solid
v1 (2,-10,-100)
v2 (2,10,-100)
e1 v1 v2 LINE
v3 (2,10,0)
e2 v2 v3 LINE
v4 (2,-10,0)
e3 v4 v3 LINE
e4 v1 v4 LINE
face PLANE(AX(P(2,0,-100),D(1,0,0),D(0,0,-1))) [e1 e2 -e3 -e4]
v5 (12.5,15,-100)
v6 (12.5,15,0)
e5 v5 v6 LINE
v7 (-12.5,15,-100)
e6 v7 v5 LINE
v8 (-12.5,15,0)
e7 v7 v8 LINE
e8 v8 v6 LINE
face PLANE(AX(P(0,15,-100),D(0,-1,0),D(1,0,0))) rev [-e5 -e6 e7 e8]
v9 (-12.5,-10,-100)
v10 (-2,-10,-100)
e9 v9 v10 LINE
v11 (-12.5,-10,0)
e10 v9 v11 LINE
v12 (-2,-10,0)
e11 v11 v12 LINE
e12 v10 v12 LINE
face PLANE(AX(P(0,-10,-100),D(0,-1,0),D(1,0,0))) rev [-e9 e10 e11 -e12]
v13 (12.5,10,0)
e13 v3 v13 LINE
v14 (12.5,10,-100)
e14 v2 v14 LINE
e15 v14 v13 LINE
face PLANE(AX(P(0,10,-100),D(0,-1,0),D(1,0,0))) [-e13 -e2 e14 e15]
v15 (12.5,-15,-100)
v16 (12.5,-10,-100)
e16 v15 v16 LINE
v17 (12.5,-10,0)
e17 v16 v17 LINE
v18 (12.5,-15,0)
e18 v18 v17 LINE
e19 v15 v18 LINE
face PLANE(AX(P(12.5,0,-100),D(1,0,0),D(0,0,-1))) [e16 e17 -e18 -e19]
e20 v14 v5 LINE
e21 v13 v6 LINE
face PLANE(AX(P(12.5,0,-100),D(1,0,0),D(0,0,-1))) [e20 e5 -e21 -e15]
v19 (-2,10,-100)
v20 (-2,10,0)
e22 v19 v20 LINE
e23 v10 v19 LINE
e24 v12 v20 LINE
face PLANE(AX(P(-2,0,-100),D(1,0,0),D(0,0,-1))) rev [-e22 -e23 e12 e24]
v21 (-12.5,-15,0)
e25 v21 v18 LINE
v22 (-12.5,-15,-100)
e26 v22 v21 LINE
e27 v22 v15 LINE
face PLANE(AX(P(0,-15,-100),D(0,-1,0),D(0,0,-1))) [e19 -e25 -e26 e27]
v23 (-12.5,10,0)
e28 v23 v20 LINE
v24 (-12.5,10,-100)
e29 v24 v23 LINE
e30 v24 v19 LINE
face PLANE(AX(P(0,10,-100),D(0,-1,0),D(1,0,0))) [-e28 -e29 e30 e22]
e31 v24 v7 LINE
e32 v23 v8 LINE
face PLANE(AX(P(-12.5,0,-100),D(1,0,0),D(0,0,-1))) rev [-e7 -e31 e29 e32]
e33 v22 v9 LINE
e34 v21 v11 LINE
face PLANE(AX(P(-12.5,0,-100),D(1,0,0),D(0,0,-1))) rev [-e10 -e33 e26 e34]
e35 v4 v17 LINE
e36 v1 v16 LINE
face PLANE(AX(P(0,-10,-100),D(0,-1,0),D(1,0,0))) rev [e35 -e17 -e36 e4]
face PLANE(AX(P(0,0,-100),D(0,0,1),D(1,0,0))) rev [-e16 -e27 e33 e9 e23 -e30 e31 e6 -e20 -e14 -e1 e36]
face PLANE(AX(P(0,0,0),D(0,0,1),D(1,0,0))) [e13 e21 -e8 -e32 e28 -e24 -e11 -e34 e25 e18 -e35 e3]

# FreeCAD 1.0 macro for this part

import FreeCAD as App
import Part
import Sketcher
from FreeCAD import Vector


def add_polygon(sketch, points):
    """Adds a closed chain of lines whose ends are joined by coincident constraints."""
    first, n = sketch.GeometryCount, len(points)
    for a, b in zip(points, points[1:] + points[:1]):
        sketch.addGeometry(Part.LineSegment(App.Vector(*a, 0), App.Vector(*b, 0)), False)
    for i in range(n):
        sketch.addConstraint(Sketcher.Constraint("Coincident", first + i, 2, first + (i + 1) % n, 1))

doc = App.newDocument("Part")
body = doc.addObject("PartDesign::Body", "Body")

sketch1 = body.newObject("Sketcher::SketchObject", "Sketch")
sketch1.AttachmentSupport = (doc.getObject("XY_Plane"), [""])
sketch1.MapMode = "FlatFace"
add_polygon(sketch1, [(-12, 15), (-12, 10), (-2, 10), (-2, -10), (-12, -10), (-12, -15), (12, -15), (12, -10), (2, -10), (2, 10), (12, 10), (12, 15)])
sketch1.addConstraint([
    Sketcher.Constraint("Vertical", 0),
    Sketcher.Constraint("Horizontal", 1),
    Sketcher.Constraint("Vertical", 2),
    Sketcher.Constraint("Horizontal", 3),
    Sketcher.Constraint("Vertical", 4),
    Sketcher.Constraint("Horizontal", 5),
    Sketcher.Constraint("Vertical", 6),
    Sketcher.Constraint("Horizontal", 7),
    Sketcher.Constraint("Vertical", 8),
    Sketcher.Constraint("Horizontal", 9),
    Sketcher.Constraint("Vertical", 10),
    Sketcher.Constraint("Horizontal", 11),
    Sketcher.Constraint("Symmetric", 0, 2, 6, 2, -1, 1),
    Sketcher.Constraint("Symmetric", 2, 2, 8, 2, -1, 1),
    Sketcher.Constraint("Symmetric", 4, 2, 10, 2, -1, 1),
    Sketcher.Constraint("Symmetric", 3, 2, 6, 2, -2),
    Sketcher.Constraint("DistanceX", 5, 1, 5, 2, 25.0),
    Sketcher.Constraint("DistanceY", 0, 2, 0, 1, 5.0),
    Sketcher.Constraint("DistanceY", 2, 2, 2, 1, 20.0),
    Sketcher.Constraint("DistanceX", 1, 1, 1, 2, 10.5),
])
pad1 = body.newObject("PartDesign::Pad", "Pad")
pad1.Profile = sketch1
pad1.Length = 100
pad1.Reversed = True

doc.recompute()
